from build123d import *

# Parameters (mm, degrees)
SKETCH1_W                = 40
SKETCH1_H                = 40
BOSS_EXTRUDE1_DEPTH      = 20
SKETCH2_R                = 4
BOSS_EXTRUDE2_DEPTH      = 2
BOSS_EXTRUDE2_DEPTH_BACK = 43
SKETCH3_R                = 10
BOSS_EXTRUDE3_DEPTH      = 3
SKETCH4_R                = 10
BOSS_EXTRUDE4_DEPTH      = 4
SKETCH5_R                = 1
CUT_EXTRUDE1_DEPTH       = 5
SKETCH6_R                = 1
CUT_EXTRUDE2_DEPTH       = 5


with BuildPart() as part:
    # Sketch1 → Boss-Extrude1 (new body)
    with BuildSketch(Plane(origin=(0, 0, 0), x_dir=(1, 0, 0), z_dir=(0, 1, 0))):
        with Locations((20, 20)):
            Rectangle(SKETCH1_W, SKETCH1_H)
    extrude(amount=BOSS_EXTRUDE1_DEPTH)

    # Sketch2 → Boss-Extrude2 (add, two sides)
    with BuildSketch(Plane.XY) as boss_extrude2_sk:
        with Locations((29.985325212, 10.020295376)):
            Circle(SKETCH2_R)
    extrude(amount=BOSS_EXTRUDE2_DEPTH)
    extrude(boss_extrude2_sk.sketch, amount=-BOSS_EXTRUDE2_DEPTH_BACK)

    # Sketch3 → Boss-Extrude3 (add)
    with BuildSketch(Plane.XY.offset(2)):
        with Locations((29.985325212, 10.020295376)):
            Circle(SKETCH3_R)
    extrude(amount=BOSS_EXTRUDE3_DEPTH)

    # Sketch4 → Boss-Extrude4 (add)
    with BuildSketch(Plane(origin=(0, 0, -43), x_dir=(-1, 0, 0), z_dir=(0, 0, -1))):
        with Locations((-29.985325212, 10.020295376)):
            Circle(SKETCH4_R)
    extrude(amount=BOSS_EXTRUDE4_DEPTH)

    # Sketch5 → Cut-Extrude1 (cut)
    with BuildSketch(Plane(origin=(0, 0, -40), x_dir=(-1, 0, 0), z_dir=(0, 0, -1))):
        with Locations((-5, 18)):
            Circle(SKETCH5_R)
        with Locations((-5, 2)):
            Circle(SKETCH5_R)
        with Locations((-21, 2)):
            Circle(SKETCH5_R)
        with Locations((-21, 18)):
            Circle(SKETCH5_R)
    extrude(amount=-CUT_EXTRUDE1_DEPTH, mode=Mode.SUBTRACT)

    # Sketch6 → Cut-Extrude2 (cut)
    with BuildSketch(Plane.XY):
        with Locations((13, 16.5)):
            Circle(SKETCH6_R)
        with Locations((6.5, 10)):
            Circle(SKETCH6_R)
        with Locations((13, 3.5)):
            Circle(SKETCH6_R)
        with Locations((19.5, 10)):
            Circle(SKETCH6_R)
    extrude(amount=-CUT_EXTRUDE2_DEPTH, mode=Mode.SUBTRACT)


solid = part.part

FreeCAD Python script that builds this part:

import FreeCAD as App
import Part
import Sketcher

V = App.Vector
Q = App.Units.Quantity

doc = App.newDocument("Part")
body = doc.addObject("PartDesign::Body", "Body")

# Sketch on XZ plane
sketch1 = doc.addObject("Sketcher::SketchObject", "Sketch")
body.addObject(sketch1)
sketch1.AttachmentSupport = (doc.XZ_Plane, [""])
sketch1.MapMode = "FlatFace"
sketch1.addGeometry([
    Part.LineSegment(V(0, -40, 0), V(0, 0, 0)),
    Part.LineSegment(V(0, 0, 0), V(40, 0, 0)),
    Part.LineSegment(V(40, 0, 0), V(40, -40, 0)),
    Part.LineSegment(V(40, -40, 0), V(0, -40, 0)),
], False)
sketch1.addConstraint([
    Sketcher.Constraint("Coincident", 0, 2, 1, 1),
    Sketcher.Constraint("Coincident", 1, 2, 2, 1),
    Sketcher.Constraint("Coincident", 2, 2, 3, 1),
    Sketcher.Constraint("Coincident", 3, 2, 0, 1),
    Sketcher.Constraint("Vertical", 0),
    Sketcher.Constraint("Horizontal", 1),
    Sketcher.Constraint("Vertical", 2),
    Sketcher.Constraint("Horizontal", 3),
    Sketcher.Constraint("Coincident", 0, 2, -1, 1),
    Sketcher.Constraint("Equal", 3, 0),
    Sketcher.Constraint("DistanceX", 1, 1, 1, 2, Q("40 mm")),
])
pad1 = doc.addObject("PartDesign::Pad", "Pad")
body.addObject(pad1)
pad1.Profile = sketch1
pad1.Length = 20
pad1.Reversed = True

# Sketch on XY plane
sketch2 = doc.addObject("Sketcher::SketchObject", "Sketch001")
body.addObject(sketch2)
sketch2.AttachmentSupport = (doc.XY_Plane, [""])
sketch2.MapMode = "FlatFace"
sketch2.addGeometry(Part.Circle(V(30, 10, 0), V(0, 0, 1), 4), False)
sketch2.addConstraint([
    Sketcher.Constraint("Diameter", 0, Q("8 mm")),
    Sketcher.Constraint("DistanceX", -1, 1, 0, 3, Q("29.985325 mm")),
    Sketcher.Constraint("DistanceY", -1, 1, 0, 3, Q("10.020295 mm")),
])
pad2 = doc.addObject("PartDesign::Pad", "Pad001")
body.addObject(pad2)
pad2.Profile = sketch2
pad2.Type = "TwoLengths"
pad2.Length = 2
pad2.Length2 = 43

# Sketch on XY plane
sketch3 = doc.addObject("Sketcher::SketchObject", "Sketch002")
body.addObject(sketch3)
sketch3.AttachmentSupport = (doc.XY_Plane, [""])
sketch3.MapMode = "FlatFace"
sketch3.AttachmentOffset = App.Placement(V(0, 0, 2), App.Rotation())
sketch3.addGeometry(Part.Circle(V(30, 10, 0), V(0, 0, 1), 10), False)
sketch3.addConstraint([
    Sketcher.Constraint("Diameter", 0, Q("20 mm")),
    Sketcher.Constraint("DistanceX", -1, 1, 0, 3, Q("29.985325 mm")),
    Sketcher.Constraint("DistanceY", -1, 1, 0, 3, Q("10.020295 mm")),
])
pad3 = doc.addObject("PartDesign::Pad", "Pad002")
body.addObject(pad3)
pad3.Profile = sketch3
pad3.Length = 3

# Sketch on XY plane
sketch4 = doc.addObject("Sketcher::SketchObject", "Sketch003")
body.addObject(sketch4)
sketch4.AttachmentSupport = (doc.XY_Plane, [""])
sketch4.MapMode = "FlatFace"
sketch4.AttachmentOffset = App.Placement(V(0, 0, -43), App.Rotation())
sketch4.addGeometry(Part.Circle(V(30, 10, 0), V(0, 0, 1), 10), False)
sketch4.addConstraint([
    Sketcher.Constraint("Diameter", 0, Q("20 mm")),
    Sketcher.Constraint("DistanceX", -1, 1, 0, 3, Q("29.985325 mm")),
    Sketcher.Constraint("DistanceY", -1, 1, 0, 3, Q("10.020295 mm")),
])
pad4 = doc.addObject("PartDesign::Pad", "Pad003")
body.addObject(pad4)
pad4.Profile = sketch4
pad4.Length = 4
pad4.Reversed = True

# Sketch on XY plane
sketch5 = doc.addObject("Sketcher::SketchObject", "Sketch004")
body.addObject(sketch5)
sketch5.AttachmentSupport = (doc.XY_Plane, [""])
sketch5.MapMode = "FlatFace"
sketch5.AttachmentOffset = App.Placement(V(0, 0, -40), App.Rotation())
sketch5.addGeometry([
    Part.Circle(V(5, 18, 0), V(0, 0, 1), 1),
    Part.Circle(V(5, 2, 0), V(0, 0, 1), 1),
    Part.Circle(V(21, 2, 0), V(0, 0, 1), 1),
    Part.Circle(V(21, 18, 0), V(0, 0, 1), 1),
], False)
sketch5.addConstraint([
    Sketcher.Constraint("Equal", 0, 1),
    Sketcher.Constraint("Equal", 1, 2),
    Sketcher.Constraint("Equal", 2, 3),
    Sketcher.Constraint("Horizontal", 1, 3, 2, 3),
    Sketcher.Constraint("Horizontal", 0, 3, 3, 3),
    Sketcher.Constraint("Vertical", 0, 3, 1, 3),
    Sketcher.Constraint("Vertical", 2, 3, 3, 3),
    Sketcher.Constraint("Diameter", 0, Q("2 mm")),
    Sketcher.Constraint("DistanceX", -1, 1, 0, 3, Q("5 mm")),
    Sketcher.Constraint("DistanceY", -1, 1, 0, 3, Q("18 mm")),
    Sketcher.Constraint("DistanceY", -1, 1, 1, 3, Q("2 mm")),
    Sketcher.Constraint("DistanceX", -1, 1, 2, 3, Q("21 mm")),
])
pocket1 = doc.addObject("PartDesign::Pocket", "Pocket")
body.addObject(pocket1)
pocket1.Profile = sketch5
pocket1.Length = 5
pocket1.Reversed = True

# Sketch on XY plane
sketch6 = doc.addObject("Sketcher::SketchObject", "Sketch005")
body.addObject(sketch6)
sketch6.AttachmentSupport = (doc.XY_Plane, [""])
sketch6.MapMode = "FlatFace"
sketch6.addGeometry([
    Part.Circle(V(13, 16.5, 0), V(0, 0, 1), 1),
    Part.Circle(V(6.5, 10, 0), V(0, 0, 1), 1),
    Part.Circle(V(13, 3.5, 0), V(0, 0, 1), 1),
    Part.Circle(V(19.5, 10, 0), V(0, 0, 1), 1),
], False)
sketch6.addConstraint([
    Sketcher.Constraint("Equal", 0, 1),
    Sketcher.Constraint("Equal", 1, 2),
    Sketcher.Constraint("Equal", 2, 3),
    Sketcher.Constraint("Horizontal", 1, 3, 3, 3),
    Sketcher.Constraint("Vertical", 0, 3, 2, 3),
    Sketcher.Constraint("Diameter", 0, Q("2 mm")),
    Sketcher.Constraint("DistanceX", -1, 1, 0, 3, Q("13 mm")),
    Sketcher.Constraint("DistanceY", -1, 1, 1, 3, Q("10 mm")),
    Sketcher.Constraint("DistanceY", 2, 3, 0, 3, Q("13 mm")),
    Sketcher.Constraint("DistanceX", 1, 3, 3, 3, Q("13 mm")),
    Sketcher.Constraint("DistanceY", -1, 1, 0, 3, Q("16.5 mm")),
    Sketcher.Constraint("DistanceX", -1, 1, 1, 3, Q("6.5 mm")),
])
pocket2 = doc.addObject("PartDesign::Pocket", "Pocket001")
body.addObject(pocket2)
pocket2.Profile = sketch6
pocket2.Length = 5

doc.recompute()
